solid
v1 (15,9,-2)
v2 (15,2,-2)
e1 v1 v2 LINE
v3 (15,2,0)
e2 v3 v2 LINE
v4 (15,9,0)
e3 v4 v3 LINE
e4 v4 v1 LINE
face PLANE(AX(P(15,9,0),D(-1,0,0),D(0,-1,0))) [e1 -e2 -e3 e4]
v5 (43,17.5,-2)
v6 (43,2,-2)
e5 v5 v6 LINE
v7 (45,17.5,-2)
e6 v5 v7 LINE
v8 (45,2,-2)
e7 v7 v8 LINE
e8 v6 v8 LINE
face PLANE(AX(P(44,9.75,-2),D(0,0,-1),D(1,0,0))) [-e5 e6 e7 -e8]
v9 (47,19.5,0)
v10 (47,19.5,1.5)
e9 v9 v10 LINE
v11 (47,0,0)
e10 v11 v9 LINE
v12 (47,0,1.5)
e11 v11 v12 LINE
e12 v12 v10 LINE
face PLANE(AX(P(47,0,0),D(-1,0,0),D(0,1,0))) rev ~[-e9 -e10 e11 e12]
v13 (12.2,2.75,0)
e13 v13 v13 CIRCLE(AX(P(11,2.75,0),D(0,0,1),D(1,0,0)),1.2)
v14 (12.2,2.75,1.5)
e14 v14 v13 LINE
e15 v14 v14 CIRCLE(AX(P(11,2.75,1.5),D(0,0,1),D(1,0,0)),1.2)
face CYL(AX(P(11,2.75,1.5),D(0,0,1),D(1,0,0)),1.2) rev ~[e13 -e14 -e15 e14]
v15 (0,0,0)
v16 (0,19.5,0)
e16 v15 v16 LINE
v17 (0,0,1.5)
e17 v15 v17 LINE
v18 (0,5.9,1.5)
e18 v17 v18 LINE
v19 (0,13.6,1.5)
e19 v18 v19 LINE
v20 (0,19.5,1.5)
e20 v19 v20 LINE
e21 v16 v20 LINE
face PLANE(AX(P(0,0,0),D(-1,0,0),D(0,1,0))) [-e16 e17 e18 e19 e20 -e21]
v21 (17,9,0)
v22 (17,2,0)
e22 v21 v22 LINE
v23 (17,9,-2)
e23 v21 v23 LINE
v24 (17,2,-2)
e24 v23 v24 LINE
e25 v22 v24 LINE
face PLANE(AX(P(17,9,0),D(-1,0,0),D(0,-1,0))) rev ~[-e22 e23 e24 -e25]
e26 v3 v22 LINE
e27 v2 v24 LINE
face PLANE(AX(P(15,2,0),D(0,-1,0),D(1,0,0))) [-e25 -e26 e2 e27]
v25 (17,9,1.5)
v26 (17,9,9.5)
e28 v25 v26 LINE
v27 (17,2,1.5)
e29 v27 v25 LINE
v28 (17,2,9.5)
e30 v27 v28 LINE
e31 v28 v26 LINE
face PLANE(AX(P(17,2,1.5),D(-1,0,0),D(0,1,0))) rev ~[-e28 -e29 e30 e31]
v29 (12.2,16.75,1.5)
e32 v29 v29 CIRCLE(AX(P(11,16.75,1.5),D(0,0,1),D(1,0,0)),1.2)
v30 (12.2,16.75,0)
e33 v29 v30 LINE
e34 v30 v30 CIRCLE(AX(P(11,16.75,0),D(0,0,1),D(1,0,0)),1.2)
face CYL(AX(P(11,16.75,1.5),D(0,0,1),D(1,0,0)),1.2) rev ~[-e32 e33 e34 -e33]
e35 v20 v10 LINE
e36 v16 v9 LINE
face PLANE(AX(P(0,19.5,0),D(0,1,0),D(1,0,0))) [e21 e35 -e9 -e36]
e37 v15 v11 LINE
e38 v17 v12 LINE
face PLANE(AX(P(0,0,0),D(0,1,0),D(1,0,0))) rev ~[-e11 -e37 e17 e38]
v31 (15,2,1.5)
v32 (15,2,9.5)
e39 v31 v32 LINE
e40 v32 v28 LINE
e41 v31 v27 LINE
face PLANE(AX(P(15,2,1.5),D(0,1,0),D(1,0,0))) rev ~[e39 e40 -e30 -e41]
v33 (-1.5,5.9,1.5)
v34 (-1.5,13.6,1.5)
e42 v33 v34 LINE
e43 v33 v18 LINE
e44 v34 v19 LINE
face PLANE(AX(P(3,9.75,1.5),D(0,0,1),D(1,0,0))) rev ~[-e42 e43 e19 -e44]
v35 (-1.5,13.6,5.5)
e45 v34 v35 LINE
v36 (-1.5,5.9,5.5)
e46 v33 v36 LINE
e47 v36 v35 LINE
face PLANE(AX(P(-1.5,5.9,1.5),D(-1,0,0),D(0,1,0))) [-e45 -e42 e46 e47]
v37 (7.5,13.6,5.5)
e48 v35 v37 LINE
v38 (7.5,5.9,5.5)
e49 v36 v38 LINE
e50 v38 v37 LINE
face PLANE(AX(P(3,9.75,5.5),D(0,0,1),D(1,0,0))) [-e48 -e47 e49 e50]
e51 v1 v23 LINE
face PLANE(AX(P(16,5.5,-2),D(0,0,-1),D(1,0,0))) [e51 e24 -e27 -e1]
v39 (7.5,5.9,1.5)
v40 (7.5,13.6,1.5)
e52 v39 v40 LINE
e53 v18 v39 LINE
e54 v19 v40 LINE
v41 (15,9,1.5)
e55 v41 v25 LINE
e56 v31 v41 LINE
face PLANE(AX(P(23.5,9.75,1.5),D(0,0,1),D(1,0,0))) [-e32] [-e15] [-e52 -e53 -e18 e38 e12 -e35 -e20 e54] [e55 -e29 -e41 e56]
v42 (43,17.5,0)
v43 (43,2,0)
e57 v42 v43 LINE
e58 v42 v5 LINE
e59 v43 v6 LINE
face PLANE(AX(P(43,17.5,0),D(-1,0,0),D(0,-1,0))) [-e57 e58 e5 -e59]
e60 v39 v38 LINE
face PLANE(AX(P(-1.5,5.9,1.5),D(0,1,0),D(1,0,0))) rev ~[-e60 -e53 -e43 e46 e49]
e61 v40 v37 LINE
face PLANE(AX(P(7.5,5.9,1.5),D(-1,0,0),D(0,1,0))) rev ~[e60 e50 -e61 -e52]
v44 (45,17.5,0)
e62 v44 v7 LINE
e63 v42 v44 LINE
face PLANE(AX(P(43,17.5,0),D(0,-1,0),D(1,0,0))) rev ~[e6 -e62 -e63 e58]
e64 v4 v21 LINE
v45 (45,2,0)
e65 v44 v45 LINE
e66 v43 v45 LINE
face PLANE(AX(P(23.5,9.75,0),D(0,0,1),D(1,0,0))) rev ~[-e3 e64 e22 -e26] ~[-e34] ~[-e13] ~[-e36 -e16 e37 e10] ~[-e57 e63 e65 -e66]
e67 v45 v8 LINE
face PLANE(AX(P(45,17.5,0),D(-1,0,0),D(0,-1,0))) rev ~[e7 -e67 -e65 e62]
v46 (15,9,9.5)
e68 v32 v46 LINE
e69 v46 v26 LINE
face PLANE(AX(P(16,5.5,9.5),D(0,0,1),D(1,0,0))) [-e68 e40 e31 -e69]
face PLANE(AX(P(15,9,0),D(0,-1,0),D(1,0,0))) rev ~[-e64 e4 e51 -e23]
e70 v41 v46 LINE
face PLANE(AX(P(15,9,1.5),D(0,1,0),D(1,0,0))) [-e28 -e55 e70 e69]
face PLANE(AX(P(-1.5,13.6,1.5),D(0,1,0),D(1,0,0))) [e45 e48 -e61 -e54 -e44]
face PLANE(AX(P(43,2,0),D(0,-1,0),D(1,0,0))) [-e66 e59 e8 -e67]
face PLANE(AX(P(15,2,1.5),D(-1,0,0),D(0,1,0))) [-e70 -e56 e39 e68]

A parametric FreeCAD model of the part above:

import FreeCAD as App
import Part
import Sketcher
from FreeCAD import Vector
Q = App.Units.Quantity


def add_polygon(sketch, points):
    """Adds a closed chain of lines whose ends are joined by coincident constraints."""
    first, n = sketch.GeometryCount, len(points)
    for a, b in zip(points, points[1:] + points[:1]):
        sketch.addGeometry(Part.LineSegment(App.Vector(*a, 0), App.Vector(*b, 0)), False)
    for i in range(n):
        sketch.addConstraint(Sketcher.Constraint("Coincident", first + i, 2, first + (i + 1) % n, 1))

doc = App.newDocument("Part")
body = doc.addObject("PartDesign::Body", "Body")

sketch1 = doc.addObject("Sketcher::SketchObject", "Sketch")
body.addObject(sketch1)
sketch1.AttachmentSupport = (doc.XY_Plane, [""])
sketch1.MapMode = "FlatFace"
add_polygon(sketch1, [(0, 20), (0, 0), (47, 0), (47, 20)])
sketch1.addConstraint(Sketcher.Constraint("Vertical", 0))
sketch1.addConstraint(Sketcher.Constraint("Horizontal", 1))
sketch1.addConstraint(Sketcher.Constraint("Vertical", 2))
sketch1.addConstraint(Sketcher.Constraint("Horizontal", 3))
sketch1.addConstraint(Sketcher.Constraint("Coincident", 0, 2, -1, 1))
sketch1.addConstraint(Sketcher.Constraint("DistanceX", 1, 1, 1, 2, Q("47 mm")))
sketch1.addConstraint(Sketcher.Constraint("DistanceY", 0, 2, 0, 1, Q("19.5 mm")))
pad1 = doc.addObject("PartDesign::Pad", "Pad")
body.addObject(pad1)
pad1.Profile = sketch1
pad1.Length = 1.5

sketch2 = doc.addObject("Sketcher::SketchObject", "Sketch001")
body.addObject(sketch2)
sketch2.AttachmentSupport = (doc.XY_Plane, [""])
sketch2.MapMode = "FlatFace"
sketch2.AttachmentOffset = App.Placement(Vector(0, 0, 1.5), App.Rotation())
add_polygon(sketch2, [(-2, 14), (-2, 6), (8, 6), (8, 14)])
sketch2.addConstraint(Sketcher.Constraint("Vertical", 0))
sketch2.addConstraint(Sketcher.Constraint("Horizontal", 1))
sketch2.addConstraint(Sketcher.Constraint("Vertical", 2))
sketch2.addConstraint(Sketcher.Constraint("Horizontal", 3))
sketch2.addConstraint(Sketcher.Constraint("DistanceX", 1, 1, 1, 2, Q("9 mm")))
sketch2.addConstraint(Sketcher.Constraint("DistanceY", 0, 2, 0, 1, Q("7.7 mm")))
sketch2.addConstraint(Sketcher.Constraint("DistanceX", 0, 2, -1, 1, Q("1.5 mm")))
sketch2.addConstraint(Sketcher.Constraint("DistanceY", -1, 1, 0, 2, Q("5.9 mm")))
pad2 = doc.addObject("PartDesign::Pad", "Pad001")
body.addObject(pad2)
pad2.Profile = sketch2
pad2.Length = 4

sketch3 = doc.addObject("Sketcher::SketchObject", "Sketch002")
body.addObject(sketch3)
sketch3.AttachmentSupport = (doc.XY_Plane, [""])
sketch3.MapMode = "FlatFace"
sketch3.AttachmentOffset = App.Placement(Vector(0, 0, 1.5), App.Rotation())
sketch3.addGeometry(Part.Circle(Vector(11, 16.8, 0), Vector(0, 0, 1), 1.2), False)
sketch3.addGeometry(Part.Circle(Vector(11, 2.8, 0), Vector(0, 0, 1), 1.2), False)
sketch3.addConstraint(Sketcher.Constraint("Equal", 0, 1))
sketch3.addConstraint(Sketcher.Constraint("Vertical", 0, 3, 1, 3))
sketch3.addConstraint(Sketcher.Constraint("Diameter", 0, Q("2.4 mm")))
sketch3.addConstraint(Sketcher.Constraint("DistanceX", -1, 1, 0, 3, Q("11 mm")))
sketch3.addConstraint(Sketcher.Constraint("DistanceY", 1, 3, 0, 3, Q("14 mm")))
sketch3.addConstraint(Sketcher.Constraint("DistanceY", -1, 1, 0, 3, Q("16.75 mm")))
pocket1 = doc.addObject("PartDesign::Pocket", "Pocket")
body.addObject(pocket1)
pocket1.Profile = sketch3
pocket1.Type = "ThroughAll"

sketch4 = doc.addObject("Sketcher::SketchObject", "Sketch003")
body.addObject(sketch4)
sketch4.AttachmentSupport = (doc.XY_Plane, [""])
sketch4.MapMode = "FlatFace"
add_polygon(sketch4, [(43, 2), (43, 17.5), (45, 17.5), (45, 2)])
add_polygon(sketch4, [(15, 2), (15, 9), (17, 9), (17, 2)])
sketch4.addConstraint(Sketcher.Constraint("Vertical", 0))
sketch4.addConstraint(Sketcher.Constraint("Horizontal", 1))
sketch4.addConstraint(Sketcher.Constraint("Vertical", 2))
sketch4.addConstraint(Sketcher.Constraint("Horizontal", 3))
sketch4.addConstraint(Sketcher.Constraint("Vertical", 4))
sketch4.addConstraint(Sketcher.Constraint("Horizontal", 5))
sketch4.addConstraint(Sketcher.Constraint("Vertical", 6))
sketch4.addConstraint(Sketcher.Constraint("Horizontal", 7))
sketch4.addConstraint(Sketcher.Constraint("Horizontal", 3, 2, 6, 2))
sketch4.addConstraint(Sketcher.Constraint("Equal", 3, 5))
sketch4.addConstraint(Sketcher.Constraint("DistanceX", 1, 1, 1, 2, Q("2 mm")))
sketch4.addConstraint(Sketcher.Constraint("DistanceY", 4, 1, 4, 2, Q("7 mm")))
sketch4.addConstraint(Sketcher.Constraint("DistanceY", 0, 1, 0, 2, Q("15.5 mm")))
sketch4.addConstraint(Sketcher.Constraint("DistanceX", -1, 1, 0, 2, Q("43 mm")))
sketch4.addConstraint(Sketcher.Constraint("DistanceY", -1, 1, 2, 2, Q("2 mm")))
sketch4.addConstraint(Sketcher.Constraint("DistanceX", -1, 1, 4, 2, Q("15 mm")))
pad3 = doc.addObject("PartDesign::Pad", "Pad002")
body.addObject(pad3)
pad3.Profile = sketch4
pad3.Length = 2
pad3.Reversed = True

sketch5 = doc.addObject("Sketcher::SketchObject", "Sketch004")
body.addObject(sketch5)
sketch5.AttachmentSupport = (doc.XY_Plane, [""])
sketch5.MapMode = "FlatFace"
sketch5.AttachmentOffset = App.Placement(Vector(0, 0, 1.5), App.Rotation())
add_polygon(sketch5, [(15, 9), (15, 2), (17, 2), (17, 9)])
sketch5.addConstraint(Sketcher.Constraint("Vertical", 0))
sketch5.addConstraint(Sketcher.Constraint("Horizontal", 1))
sketch5.addConstraint(Sketcher.Constraint("Vertical", 2))
sketch5.addConstraint(Sketcher.Constraint("Horizontal", 3))
sketch5.addConstraint(Sketcher.Constraint("DistanceX", 1, 1, 1, 2, Q("2 mm")))
sketch5.addConstraint(Sketcher.Constraint("DistanceY", 0, 2, 0, 1, Q("7 mm")))
sketch5.addConstraint(Sketcher.Constraint("DistanceX", -1, 1, 0, 2, Q("15 mm")))
sketch5.addConstraint(Sketcher.Constraint("DistanceY", -1, 1, 0, 2, Q("2 mm")))
pad4 = doc.addObject("PartDesign::Pad", "Pad003")
body.addObject(pad4)
pad4.Profile = sketch5
pad4.Length = 8

doc.recompute()
